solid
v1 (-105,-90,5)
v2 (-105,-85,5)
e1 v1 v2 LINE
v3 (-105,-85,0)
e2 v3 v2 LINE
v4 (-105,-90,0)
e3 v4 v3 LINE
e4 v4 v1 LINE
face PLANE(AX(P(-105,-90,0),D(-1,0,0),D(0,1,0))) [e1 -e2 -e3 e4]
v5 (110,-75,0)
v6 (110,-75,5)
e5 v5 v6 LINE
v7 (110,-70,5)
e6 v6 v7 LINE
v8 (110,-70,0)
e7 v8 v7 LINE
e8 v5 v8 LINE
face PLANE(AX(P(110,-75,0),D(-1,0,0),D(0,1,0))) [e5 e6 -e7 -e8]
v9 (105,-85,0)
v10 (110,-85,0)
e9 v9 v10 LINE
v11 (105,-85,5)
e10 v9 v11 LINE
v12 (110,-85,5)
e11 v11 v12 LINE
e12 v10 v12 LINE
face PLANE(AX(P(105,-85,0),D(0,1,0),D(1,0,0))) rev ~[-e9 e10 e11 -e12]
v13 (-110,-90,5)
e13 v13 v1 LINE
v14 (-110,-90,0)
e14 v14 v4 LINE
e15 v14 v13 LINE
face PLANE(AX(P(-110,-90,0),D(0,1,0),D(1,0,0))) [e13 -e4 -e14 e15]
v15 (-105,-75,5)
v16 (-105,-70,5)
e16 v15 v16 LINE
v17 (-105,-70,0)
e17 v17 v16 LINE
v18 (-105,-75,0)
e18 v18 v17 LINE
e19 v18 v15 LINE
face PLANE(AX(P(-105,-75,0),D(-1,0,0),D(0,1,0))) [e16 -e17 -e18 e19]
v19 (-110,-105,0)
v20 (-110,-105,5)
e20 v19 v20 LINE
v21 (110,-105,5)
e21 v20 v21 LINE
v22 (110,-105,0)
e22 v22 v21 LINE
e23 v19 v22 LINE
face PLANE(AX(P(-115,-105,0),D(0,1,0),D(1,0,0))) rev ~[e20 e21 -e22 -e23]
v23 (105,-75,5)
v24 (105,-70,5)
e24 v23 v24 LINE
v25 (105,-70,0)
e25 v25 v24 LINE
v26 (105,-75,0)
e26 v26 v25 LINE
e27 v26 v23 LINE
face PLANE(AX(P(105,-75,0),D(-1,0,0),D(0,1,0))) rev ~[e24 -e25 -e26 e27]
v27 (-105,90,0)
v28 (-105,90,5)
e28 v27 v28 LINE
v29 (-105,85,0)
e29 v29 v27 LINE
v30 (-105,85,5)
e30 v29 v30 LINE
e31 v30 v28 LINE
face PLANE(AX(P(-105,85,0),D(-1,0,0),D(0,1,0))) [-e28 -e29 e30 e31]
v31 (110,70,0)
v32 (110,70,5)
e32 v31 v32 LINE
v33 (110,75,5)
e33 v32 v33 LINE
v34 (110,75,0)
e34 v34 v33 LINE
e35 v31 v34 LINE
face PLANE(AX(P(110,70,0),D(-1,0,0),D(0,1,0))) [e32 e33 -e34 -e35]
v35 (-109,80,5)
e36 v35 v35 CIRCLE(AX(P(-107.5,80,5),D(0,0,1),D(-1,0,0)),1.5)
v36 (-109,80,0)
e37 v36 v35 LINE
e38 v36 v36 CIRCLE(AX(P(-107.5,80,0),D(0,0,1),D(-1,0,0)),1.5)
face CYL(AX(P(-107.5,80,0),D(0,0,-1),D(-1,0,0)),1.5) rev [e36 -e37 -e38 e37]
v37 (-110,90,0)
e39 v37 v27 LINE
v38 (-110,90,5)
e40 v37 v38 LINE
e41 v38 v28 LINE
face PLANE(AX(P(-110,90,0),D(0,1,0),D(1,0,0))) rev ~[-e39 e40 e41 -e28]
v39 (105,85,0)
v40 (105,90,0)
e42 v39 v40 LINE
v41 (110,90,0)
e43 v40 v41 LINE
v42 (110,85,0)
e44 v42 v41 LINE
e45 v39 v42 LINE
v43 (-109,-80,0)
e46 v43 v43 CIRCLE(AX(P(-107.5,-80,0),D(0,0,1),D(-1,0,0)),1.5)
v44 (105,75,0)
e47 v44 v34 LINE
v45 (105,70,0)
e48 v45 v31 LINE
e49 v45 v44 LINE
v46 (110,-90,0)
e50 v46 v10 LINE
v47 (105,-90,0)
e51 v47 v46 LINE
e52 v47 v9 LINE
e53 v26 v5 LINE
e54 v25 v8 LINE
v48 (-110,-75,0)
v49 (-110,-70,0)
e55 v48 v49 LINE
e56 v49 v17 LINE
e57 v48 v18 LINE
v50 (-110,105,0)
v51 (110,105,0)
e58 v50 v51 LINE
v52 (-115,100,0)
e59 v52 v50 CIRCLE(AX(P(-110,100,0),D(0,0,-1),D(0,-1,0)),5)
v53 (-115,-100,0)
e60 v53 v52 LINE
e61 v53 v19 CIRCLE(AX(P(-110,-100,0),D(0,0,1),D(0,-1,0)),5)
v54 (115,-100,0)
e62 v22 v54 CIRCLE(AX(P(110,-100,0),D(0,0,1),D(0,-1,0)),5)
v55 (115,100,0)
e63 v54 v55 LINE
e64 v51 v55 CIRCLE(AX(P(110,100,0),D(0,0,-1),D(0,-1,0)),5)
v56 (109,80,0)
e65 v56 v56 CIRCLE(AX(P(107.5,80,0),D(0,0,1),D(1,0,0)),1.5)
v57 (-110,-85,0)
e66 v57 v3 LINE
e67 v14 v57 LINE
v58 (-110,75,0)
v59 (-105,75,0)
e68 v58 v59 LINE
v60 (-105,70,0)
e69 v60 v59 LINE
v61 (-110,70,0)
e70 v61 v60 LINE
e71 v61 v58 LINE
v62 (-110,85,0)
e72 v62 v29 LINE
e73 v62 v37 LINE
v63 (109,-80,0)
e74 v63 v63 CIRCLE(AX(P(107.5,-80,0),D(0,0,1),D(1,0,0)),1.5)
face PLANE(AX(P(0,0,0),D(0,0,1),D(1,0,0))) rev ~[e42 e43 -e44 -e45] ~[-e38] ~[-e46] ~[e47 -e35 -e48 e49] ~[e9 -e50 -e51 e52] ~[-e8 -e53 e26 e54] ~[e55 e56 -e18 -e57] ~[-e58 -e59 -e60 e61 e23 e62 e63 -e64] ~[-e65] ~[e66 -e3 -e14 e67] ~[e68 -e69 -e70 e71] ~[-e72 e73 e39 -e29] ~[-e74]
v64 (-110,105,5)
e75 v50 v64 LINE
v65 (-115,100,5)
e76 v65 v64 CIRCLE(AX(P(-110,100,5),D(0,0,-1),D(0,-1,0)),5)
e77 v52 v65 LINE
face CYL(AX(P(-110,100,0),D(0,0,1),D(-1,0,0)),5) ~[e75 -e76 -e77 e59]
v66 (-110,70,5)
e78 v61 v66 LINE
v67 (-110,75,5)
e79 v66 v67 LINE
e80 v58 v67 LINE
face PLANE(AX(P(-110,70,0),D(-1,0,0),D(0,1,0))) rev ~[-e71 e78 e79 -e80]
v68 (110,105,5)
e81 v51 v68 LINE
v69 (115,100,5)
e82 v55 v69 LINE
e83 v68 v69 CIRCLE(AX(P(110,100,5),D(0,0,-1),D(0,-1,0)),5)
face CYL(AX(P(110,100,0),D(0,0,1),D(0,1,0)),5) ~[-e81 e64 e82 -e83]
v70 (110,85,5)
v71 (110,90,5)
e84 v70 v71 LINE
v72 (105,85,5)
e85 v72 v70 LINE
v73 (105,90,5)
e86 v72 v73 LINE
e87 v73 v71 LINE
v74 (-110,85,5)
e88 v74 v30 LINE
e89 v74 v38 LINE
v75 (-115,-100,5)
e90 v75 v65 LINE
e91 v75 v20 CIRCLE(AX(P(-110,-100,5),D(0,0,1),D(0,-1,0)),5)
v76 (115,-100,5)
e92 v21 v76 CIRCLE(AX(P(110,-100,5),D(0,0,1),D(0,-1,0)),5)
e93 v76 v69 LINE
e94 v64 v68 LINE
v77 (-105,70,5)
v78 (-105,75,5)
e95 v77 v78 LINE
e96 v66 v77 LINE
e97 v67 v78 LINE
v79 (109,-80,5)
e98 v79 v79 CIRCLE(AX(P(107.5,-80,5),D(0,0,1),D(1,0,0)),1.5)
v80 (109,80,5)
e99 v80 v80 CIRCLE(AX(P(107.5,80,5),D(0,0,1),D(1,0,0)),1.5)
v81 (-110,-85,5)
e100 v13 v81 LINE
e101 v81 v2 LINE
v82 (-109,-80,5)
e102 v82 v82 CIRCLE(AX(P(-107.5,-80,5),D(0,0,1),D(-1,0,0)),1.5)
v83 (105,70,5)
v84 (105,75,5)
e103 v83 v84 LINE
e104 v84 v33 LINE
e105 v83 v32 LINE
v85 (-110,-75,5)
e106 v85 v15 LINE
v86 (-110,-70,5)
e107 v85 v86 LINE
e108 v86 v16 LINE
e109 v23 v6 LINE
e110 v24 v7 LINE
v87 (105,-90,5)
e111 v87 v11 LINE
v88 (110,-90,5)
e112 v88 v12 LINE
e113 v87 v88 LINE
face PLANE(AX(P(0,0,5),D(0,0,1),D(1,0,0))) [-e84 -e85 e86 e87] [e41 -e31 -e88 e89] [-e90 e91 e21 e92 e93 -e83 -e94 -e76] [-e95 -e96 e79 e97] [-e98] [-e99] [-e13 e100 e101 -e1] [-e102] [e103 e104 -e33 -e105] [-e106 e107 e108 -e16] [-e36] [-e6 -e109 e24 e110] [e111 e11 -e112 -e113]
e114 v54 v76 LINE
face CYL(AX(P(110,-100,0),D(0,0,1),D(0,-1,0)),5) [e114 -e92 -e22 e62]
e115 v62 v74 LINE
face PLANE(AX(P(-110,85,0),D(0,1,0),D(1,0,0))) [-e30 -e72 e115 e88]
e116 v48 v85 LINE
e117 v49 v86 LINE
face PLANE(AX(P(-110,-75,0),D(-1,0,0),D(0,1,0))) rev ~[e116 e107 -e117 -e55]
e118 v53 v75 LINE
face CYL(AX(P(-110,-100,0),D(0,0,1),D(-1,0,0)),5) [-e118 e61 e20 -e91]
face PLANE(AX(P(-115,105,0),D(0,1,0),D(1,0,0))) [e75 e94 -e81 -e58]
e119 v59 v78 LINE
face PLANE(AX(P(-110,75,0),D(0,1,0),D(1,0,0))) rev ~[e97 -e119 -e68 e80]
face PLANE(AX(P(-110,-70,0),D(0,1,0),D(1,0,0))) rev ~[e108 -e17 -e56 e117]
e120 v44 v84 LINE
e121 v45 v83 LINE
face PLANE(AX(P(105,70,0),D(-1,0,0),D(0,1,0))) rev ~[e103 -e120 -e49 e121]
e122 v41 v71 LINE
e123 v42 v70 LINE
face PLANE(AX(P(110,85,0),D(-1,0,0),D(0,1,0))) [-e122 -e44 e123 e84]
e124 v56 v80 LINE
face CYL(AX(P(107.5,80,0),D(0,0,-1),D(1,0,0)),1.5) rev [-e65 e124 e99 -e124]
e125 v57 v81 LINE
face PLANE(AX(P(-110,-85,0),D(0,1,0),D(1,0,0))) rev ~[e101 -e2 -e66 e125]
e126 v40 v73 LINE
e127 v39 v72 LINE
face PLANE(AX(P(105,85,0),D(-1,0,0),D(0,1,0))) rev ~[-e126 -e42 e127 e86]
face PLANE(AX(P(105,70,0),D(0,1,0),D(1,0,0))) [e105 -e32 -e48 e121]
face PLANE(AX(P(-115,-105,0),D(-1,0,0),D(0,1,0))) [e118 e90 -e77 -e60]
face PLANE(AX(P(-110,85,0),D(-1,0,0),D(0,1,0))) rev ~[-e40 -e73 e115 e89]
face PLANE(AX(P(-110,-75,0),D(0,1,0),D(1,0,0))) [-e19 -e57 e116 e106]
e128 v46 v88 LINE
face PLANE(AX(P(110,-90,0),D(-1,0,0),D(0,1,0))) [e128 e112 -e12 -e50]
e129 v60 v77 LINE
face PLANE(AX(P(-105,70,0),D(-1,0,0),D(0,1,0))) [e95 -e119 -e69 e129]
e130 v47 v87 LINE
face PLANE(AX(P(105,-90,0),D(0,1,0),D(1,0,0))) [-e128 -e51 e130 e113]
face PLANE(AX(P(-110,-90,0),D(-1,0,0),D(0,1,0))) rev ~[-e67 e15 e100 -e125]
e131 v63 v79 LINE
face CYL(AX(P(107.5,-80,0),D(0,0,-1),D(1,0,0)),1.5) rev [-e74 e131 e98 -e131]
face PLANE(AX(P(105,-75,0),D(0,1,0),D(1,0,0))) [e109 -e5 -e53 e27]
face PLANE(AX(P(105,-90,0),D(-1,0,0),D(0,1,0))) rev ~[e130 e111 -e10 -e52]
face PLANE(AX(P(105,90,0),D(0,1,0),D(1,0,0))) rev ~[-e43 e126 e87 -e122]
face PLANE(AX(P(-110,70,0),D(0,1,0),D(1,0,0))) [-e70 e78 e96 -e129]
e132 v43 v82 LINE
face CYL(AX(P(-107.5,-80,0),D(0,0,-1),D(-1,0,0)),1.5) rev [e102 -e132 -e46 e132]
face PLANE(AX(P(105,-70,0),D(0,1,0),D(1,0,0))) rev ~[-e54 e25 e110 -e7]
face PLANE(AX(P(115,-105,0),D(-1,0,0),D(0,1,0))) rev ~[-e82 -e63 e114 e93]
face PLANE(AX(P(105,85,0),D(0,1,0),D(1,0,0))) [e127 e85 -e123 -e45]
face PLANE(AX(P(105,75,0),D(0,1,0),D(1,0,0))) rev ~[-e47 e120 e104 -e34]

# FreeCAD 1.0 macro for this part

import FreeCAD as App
import Part
import Sketcher

V = App.Vector
Q = App.Units.Quantity


def edges_at(feature, points):
    """Names of the edges that pass closest to the given points."""
    edges = feature.Shape.Edges
    near = lambda p: min(range(len(edges)), key=lambda i: edges[i].distToShape(Part.Vertex(*p))[0])
    return sorted({f"Edge{near(p) + 1}" for p in points})


def add_polygon(sketch, points):
    """Adds a closed chain of lines whose ends are joined by coincident constraints."""
    first, n = sketch.GeometryCount, len(points)
    for a, b in zip(points, points[1:] + points[:1]):
        sketch.addGeometry(Part.LineSegment(App.Vector(*a, 0), App.Vector(*b, 0)), False)
    for i in range(n):
        sketch.addConstraint(Sketcher.Constraint("Coincident", first + i, 2, first + (i + 1) % n, 1))

doc = App.newDocument("Part")
body = doc.addObject("PartDesign::Body", "Body")

sketch1 = body.newObject("Sketcher::SketchObject", "Sketch")
sketch1.AttachmentSupport = (doc.getObject("XY_Plane"), [""])
sketch1.MapMode = "FlatFace"
add_polygon(sketch1, [(-115, 105), (-115, -105), (115, -105), (115, 105)])
add_polygon(sketch1, [(-105, -90), (-110, -90), (-110, -85), (-105, -85)])
sketch1.addGeometry(Part.Circle(V(-107.5, -80, 0), V(0, 0, 1), 1.5), False)
add_polygon(sketch1, [(-105, -75), (-110, -75), (-110, -70), (-105, -70)])
add_polygon(sketch1, [(110, -90), (105, -90), (105, -85), (110, -85)])
sketch1.addGeometry(Part.Circle(V(107.5, -80, 0), V(0, 0, 1), 1.5), False)
add_polygon(sketch1, [(110, -75), (105, -75), (105, -70), (110, -70)])
add_polygon(sketch1, [(-105, 70), (-110, 70), (-110, 75), (-105, 75)])
sketch1.addGeometry(Part.Circle(V(-107.5, 80, 0), V(0, 0, 1), 1.5), False)
add_polygon(sketch1, [(-105, 85), (-110, 85), (-110, 90), (-105, 90)])
add_polygon(sketch1, [(110, 70), (105, 70), (105, 75), (110, 75)])
sketch1.addGeometry(Part.Circle(V(107.5, 80, 0), V(0, 0, 1), 1.5), False)
add_polygon(sketch1, [(110, 85), (105, 85), (105, 90), (110, 90)])
sketch1.addConstraint(Sketcher.Constraint("Vertical", 0))
sketch1.addConstraint(Sketcher.Constraint("Horizontal", 1))
sketch1.addConstraint(Sketcher.Constraint("Vertical", 2))
sketch1.addConstraint(Sketcher.Constraint("Horizontal", 3))
sketch1.addConstraint(Sketcher.Constraint("Horizontal", 4))
sketch1.addConstraint(Sketcher.Constraint("Vertical", 5))
sketch1.addConstraint(Sketcher.Constraint("Horizontal", 6))
sketch1.addConstraint(Sketcher.Constraint("Vertical", 7))
sketch1.addConstraint(Sketcher.Constraint("Horizontal", 9))
sketch1.addConstraint(Sketcher.Constraint("Vertical", 10))
sketch1.addConstraint(Sketcher.Constraint("Horizontal", 11))
sketch1.addConstraint(Sketcher.Constraint("Vertical", 12))
sketch1.addConstraint(Sketcher.Constraint("Horizontal", 13))
sketch1.addConstraint(Sketcher.Constraint("Vertical", 14))
sketch1.addConstraint(Sketcher.Constraint("Horizontal", 15))
sketch1.addConstraint(Sketcher.Constraint("Vertical", 16))
sketch1.addConstraint(Sketcher.Constraint("Horizontal", 18))
sketch1.addConstraint(Sketcher.Constraint("Vertical", 19))
sketch1.addConstraint(Sketcher.Constraint("Horizontal", 20))
sketch1.addConstraint(Sketcher.Constraint("Vertical", 21))
sketch1.addConstraint(Sketcher.Constraint("Horizontal", 22))
sketch1.addConstraint(Sketcher.Constraint("Vertical", 23))
sketch1.addConstraint(Sketcher.Constraint("Horizontal", 24))
sketch1.addConstraint(Sketcher.Constraint("Vertical", 25))
sketch1.addConstraint(Sketcher.Constraint("Horizontal", 27))
sketch1.addConstraint(Sketcher.Constraint("Vertical", 28))
sketch1.addConstraint(Sketcher.Constraint("Horizontal", 29))
sketch1.addConstraint(Sketcher.Constraint("Vertical", 30))
sketch1.addConstraint(Sketcher.Constraint("Horizontal", 31))
sketch1.addConstraint(Sketcher.Constraint("Vertical", 32))
sketch1.addConstraint(Sketcher.Constraint("Horizontal", 33))
sketch1.addConstraint(Sketcher.Constraint("Vertical", 34))
sketch1.addConstraint(Sketcher.Constraint("Horizontal", 36))
sketch1.addConstraint(Sketcher.Constraint("Vertical", 37))
sketch1.addConstraint(Sketcher.Constraint("Horizontal", 38))
sketch1.addConstraint(Sketcher.Constraint("Vertical", 39))
sketch1.addConstraint(Sketcher.Constraint("Equal", 8, 17))
sketch1.addConstraint(Sketcher.Constraint("Equal", 17, 26))
sketch1.addConstraint(Sketcher.Constraint("Equal", 26, 35))
sketch1.addConstraint(Sketcher.Constraint("Symmetric", 17, 3, 26, 3, -1, 1))
sketch1.addConstraint(Sketcher.Constraint("Symmetric", 8, 3, 35, 3, -1, 1))
sketch1.addConstraint(Sketcher.Constraint("Symmetric", 0, 2, 2, 2, -1, 1))
sketch1.addConstraint(Sketcher.Constraint("Symmetric", 20, 2, 22, 2, -1, 1))
sketch1.addConstraint(Sketcher.Constraint("Symmetric", 18, 2, 24, 2, -1, 1))
sketch1.addConstraint(Sketcher.Constraint("Symmetric", 15, 2, 27, 2, -1, 1))
sketch1.addConstraint(Sketcher.Constraint("Symmetric", 13, 2, 29, 2, -1, 1))
sketch1.addConstraint(Sketcher.Constraint("Symmetric", 11, 2, 31, 2, -1, 1))
sketch1.addConstraint(Sketcher.Constraint("Symmetric", 9, 2, 33, 2, -1, 1))
sketch1.addConstraint(Sketcher.Constraint("Symmetric", 6, 2, 36, 2, -1, 1))
sketch1.addConstraint(Sketcher.Constraint("Symmetric", 4, 2, 38, 2, -1, 1))
sketch1.addConstraint(Sketcher.Constraint("Symmetric", 8, 3, 17, 3, -2))
sketch1.addConstraint(Sketcher.Constraint("Symmetric", 7, 2, 13, 2, -2))
sketch1.addConstraint(Sketcher.Constraint("Symmetric", 5, 2, 15, 2, -2))
sketch1.addConstraint(Sketcher.Constraint("Symmetric", 12, 2, 18, 2, -2))
sketch1.addConstraint(Sketcher.Constraint("Symmetric", 10, 2, 20, 2, -2))
sketch1.addConstraint(Sketcher.Constraint("Vertical", 5, 2, 9, 2))
sketch1.addConstraint(Sketcher.Constraint("Vertical", 7, 2, 11, 2))
sketch1.addConstraint(Sketcher.Constraint("Equal", 38, 5))
sketch1.addConstraint(Sketcher.Constraint("Equal", 7, 10))
sketch1.addConstraint(Sketcher.Constraint("Diameter", 8, Q("3 mm")))
sketch1.addConstraint(Sketcher.Constraint("DistanceX", 1, 1, 1, 2, Q("230 mm")))
sketch1.addConstraint(Sketcher.Constraint("DistanceX", 4, 2, 4, 1, Q("5 mm")))
sketch1.addConstraint(Sketcher.Constraint("DistanceY", 0, 2, 0, 1, Q("210 mm")))
sketch1.addConstraint(Sketcher.Constraint("DistanceY", 8, 3, -1, 1, Q("80 mm")))
sketch1.addConstraint(Sketcher.Constraint("DistanceX", 4, 2, -1, 1, Q("110 mm")))
sketch1.addConstraint(Sketcher.Constraint("DistanceY", 4, 2, -1, 1, Q("90 mm")))
sketch1.addConstraint(Sketcher.Constraint("DistanceY", 9, 2, -1, 1, Q("75 mm")))
sketch1.addConstraint(Sketcher.Constraint("DistanceX", 8, 3, 17, 3, Q("215 mm")))
pad1 = body.newObject("PartDesign::Pad", "Pad")
pad1.Profile = sketch1
pad1.Length = 5
doc.recompute()

fillet = body.newObject("PartDesign::Fillet", "Fillet")
fillet.Base = (pad1, edges_at(pad1, [
    (-115, 105, 2.5),
    (115, 105, 2.5),
    (115, -105, 2.5),
    (-115, -105, 2.5),
]))
fillet.Radius = 5

doc.recompute()
